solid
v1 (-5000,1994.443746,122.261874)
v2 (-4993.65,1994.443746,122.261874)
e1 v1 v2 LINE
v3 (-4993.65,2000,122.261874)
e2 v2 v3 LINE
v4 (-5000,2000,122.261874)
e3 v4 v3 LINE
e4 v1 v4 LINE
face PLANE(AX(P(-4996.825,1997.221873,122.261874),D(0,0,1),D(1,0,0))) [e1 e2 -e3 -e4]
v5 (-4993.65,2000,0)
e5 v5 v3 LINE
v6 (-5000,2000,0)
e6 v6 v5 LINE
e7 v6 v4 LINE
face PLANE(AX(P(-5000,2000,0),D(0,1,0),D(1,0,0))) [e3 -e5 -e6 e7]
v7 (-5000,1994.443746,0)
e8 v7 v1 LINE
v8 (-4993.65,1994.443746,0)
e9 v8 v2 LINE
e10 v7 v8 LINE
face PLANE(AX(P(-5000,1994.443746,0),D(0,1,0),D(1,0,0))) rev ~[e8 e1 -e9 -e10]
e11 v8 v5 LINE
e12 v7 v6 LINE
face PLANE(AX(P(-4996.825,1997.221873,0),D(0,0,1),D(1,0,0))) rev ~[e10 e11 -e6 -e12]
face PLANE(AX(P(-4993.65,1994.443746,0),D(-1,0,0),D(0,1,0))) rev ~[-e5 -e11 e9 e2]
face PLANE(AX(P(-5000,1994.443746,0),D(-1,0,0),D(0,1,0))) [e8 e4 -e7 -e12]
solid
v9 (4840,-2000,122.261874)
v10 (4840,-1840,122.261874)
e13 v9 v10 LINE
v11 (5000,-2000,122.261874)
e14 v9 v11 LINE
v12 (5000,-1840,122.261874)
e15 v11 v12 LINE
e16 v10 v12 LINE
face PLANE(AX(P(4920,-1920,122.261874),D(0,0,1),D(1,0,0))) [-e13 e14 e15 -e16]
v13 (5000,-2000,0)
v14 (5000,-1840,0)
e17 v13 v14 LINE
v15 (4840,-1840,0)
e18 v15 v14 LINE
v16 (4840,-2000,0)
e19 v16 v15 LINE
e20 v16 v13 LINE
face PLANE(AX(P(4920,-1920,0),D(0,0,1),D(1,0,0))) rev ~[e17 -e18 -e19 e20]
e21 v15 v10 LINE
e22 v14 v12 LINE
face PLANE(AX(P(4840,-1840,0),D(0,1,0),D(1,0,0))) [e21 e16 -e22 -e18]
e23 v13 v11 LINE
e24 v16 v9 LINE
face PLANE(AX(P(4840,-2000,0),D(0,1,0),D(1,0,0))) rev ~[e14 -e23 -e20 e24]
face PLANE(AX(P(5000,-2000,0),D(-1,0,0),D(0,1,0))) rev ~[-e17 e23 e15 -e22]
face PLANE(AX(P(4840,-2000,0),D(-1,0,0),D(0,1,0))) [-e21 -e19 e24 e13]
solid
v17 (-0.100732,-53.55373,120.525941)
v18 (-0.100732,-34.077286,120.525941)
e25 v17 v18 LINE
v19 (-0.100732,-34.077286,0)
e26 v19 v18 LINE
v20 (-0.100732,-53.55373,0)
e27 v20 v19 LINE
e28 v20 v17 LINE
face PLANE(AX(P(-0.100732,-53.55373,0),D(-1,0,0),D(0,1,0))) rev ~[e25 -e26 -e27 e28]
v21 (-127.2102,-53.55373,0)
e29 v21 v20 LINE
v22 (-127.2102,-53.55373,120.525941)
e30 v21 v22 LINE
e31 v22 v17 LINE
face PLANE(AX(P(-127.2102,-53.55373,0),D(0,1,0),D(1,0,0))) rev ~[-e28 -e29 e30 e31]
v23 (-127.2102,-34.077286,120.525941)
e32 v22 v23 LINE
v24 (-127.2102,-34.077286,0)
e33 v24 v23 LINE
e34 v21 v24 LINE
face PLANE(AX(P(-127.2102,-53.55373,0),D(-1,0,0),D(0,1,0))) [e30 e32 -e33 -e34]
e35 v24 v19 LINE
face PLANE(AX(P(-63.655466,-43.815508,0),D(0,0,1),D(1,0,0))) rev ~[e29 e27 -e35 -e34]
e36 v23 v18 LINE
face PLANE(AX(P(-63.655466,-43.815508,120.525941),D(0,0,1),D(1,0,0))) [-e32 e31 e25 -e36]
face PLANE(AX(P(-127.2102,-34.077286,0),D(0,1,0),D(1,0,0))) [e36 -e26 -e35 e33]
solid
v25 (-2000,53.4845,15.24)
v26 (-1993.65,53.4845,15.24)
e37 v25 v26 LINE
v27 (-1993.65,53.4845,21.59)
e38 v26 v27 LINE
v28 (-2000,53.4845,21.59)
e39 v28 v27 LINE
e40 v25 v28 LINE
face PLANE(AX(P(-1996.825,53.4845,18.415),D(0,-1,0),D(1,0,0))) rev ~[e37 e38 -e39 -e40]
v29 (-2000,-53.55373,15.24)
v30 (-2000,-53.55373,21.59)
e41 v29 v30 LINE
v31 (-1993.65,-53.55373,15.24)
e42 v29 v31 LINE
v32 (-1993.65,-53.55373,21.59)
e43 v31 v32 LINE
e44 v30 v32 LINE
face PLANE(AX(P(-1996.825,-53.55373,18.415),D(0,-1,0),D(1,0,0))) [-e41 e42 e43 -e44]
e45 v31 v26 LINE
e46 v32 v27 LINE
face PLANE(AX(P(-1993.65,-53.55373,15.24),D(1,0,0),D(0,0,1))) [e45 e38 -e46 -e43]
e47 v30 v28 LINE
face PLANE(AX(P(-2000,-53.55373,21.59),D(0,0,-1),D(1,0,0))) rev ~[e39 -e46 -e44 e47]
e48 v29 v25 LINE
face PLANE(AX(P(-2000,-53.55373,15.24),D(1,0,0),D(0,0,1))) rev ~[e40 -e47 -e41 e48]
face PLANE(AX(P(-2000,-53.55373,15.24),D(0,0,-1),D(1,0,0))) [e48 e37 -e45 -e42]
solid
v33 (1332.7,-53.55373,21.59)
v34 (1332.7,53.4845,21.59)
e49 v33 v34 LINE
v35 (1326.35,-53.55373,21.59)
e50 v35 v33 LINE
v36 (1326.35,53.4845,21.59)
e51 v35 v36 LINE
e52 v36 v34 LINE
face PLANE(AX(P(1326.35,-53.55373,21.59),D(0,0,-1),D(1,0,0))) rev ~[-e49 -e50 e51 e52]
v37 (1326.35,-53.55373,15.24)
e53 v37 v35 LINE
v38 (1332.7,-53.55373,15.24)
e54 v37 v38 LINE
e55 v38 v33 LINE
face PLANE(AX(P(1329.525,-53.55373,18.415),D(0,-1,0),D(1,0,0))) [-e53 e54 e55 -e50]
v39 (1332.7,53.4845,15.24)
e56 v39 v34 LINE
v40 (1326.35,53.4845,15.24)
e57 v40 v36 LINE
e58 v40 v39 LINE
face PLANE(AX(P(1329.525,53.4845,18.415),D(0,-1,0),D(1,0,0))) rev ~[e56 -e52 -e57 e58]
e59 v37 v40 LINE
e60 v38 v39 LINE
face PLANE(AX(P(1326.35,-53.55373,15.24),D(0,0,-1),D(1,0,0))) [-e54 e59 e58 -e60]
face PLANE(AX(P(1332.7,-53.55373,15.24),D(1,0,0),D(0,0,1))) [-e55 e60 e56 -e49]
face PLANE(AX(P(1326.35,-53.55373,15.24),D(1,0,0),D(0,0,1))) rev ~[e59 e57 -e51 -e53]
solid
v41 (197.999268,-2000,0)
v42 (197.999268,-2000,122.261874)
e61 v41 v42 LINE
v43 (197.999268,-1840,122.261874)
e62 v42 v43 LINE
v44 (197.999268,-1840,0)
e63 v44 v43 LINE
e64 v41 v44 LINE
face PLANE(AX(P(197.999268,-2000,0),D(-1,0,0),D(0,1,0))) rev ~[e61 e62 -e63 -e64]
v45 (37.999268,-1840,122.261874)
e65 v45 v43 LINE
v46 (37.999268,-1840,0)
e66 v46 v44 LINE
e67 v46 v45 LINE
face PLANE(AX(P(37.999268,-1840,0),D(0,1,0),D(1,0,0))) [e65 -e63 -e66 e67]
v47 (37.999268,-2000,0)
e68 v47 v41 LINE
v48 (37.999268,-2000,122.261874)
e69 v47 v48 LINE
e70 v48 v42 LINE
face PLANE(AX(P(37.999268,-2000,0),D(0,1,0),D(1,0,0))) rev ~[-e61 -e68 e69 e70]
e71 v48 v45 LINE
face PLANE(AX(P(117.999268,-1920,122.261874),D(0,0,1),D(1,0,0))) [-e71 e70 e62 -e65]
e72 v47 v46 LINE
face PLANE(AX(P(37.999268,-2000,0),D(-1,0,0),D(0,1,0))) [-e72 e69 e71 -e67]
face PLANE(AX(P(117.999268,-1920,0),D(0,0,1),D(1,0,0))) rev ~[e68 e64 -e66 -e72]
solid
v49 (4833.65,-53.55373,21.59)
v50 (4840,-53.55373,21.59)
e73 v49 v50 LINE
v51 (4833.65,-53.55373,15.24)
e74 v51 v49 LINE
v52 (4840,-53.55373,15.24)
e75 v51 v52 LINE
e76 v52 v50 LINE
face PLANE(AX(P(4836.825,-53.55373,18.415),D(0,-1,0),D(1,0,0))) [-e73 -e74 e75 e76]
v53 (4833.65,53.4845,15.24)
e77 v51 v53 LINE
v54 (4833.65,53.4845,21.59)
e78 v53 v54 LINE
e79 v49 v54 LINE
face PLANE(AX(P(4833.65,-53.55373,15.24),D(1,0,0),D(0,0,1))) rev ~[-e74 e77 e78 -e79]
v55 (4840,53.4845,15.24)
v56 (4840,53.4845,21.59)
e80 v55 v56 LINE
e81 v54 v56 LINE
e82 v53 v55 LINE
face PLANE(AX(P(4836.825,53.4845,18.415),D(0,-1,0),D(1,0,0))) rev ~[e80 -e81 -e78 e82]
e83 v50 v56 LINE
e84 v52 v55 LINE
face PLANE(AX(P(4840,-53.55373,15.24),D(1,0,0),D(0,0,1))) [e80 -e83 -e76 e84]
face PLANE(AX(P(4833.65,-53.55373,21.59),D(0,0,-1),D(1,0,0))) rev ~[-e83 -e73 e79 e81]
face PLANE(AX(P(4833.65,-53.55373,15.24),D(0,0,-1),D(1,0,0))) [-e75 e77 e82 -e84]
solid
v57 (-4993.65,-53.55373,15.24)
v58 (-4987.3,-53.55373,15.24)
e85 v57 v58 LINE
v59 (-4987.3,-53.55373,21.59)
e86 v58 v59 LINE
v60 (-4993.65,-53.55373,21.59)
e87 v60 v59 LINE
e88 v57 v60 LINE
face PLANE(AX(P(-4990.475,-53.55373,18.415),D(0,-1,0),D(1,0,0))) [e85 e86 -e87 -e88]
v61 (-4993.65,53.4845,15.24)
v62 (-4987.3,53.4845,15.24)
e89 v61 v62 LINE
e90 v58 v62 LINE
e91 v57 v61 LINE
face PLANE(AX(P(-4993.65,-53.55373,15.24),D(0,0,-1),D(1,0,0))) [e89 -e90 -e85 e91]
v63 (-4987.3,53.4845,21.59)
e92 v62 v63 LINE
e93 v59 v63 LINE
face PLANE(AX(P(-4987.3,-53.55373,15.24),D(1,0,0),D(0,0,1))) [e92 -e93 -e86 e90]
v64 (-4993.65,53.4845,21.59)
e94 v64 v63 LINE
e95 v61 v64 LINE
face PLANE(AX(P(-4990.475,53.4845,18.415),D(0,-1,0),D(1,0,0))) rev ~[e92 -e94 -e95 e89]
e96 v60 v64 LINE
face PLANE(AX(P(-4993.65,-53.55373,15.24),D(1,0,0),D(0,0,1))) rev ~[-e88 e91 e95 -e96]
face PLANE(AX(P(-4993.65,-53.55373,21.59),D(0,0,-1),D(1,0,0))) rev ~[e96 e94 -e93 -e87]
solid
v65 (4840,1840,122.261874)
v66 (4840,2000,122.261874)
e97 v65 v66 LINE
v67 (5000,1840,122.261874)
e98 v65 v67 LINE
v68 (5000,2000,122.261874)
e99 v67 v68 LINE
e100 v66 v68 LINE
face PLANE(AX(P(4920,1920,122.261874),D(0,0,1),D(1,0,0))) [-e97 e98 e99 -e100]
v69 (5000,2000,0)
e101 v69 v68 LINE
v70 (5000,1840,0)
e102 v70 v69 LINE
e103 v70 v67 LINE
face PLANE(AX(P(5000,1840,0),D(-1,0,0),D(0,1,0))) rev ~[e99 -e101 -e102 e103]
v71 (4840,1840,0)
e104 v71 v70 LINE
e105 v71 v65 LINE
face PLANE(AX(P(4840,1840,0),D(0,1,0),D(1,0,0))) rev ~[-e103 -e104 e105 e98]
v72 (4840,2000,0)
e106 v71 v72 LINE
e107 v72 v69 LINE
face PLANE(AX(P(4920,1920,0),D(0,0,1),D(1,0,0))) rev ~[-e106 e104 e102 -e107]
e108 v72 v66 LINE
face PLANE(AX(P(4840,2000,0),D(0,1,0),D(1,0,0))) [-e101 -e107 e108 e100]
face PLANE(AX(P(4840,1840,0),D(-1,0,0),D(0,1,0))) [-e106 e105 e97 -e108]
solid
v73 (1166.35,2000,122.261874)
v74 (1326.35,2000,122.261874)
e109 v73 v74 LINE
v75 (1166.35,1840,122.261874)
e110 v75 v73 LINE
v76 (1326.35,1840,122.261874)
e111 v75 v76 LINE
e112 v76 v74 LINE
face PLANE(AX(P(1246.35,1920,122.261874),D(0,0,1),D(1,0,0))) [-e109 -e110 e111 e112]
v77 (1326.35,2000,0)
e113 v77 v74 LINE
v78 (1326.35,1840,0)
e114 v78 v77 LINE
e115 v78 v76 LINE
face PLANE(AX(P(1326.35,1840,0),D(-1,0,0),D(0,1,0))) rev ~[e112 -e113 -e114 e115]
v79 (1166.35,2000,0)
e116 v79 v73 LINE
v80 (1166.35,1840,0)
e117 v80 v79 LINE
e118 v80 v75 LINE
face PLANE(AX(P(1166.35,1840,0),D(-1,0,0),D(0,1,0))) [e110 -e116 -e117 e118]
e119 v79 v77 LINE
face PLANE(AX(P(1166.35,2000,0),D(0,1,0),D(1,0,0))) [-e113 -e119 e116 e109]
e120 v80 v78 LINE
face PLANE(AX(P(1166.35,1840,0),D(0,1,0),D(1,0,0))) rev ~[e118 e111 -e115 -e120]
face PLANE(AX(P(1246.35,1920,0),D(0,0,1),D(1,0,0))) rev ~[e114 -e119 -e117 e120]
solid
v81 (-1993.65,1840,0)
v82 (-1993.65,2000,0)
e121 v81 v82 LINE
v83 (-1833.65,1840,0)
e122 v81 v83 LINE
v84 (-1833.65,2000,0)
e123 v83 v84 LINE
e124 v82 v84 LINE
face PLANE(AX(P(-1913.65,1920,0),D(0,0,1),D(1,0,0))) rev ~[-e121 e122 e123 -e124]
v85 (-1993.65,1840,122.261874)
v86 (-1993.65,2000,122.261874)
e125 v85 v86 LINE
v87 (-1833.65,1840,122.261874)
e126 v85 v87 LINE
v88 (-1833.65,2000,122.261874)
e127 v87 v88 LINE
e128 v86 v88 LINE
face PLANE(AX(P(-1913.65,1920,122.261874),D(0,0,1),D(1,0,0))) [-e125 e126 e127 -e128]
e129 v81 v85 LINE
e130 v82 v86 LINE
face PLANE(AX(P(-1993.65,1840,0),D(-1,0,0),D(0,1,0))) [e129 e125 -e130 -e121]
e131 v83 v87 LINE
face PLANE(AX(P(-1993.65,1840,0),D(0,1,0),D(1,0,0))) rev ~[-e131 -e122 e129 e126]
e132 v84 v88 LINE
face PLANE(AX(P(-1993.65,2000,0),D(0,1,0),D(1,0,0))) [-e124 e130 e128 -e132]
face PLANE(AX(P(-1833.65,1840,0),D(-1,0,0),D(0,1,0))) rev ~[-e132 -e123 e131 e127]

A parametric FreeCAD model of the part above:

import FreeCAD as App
import Part
import Sketcher


def add_polygon(sketch, points):
    """Adds a closed chain of lines whose ends are joined by coincident constraints."""
    first, n = sketch.GeometryCount, len(points)
    for a, b in zip(points, points[1:] + points[:1]):
        sketch.addGeometry(Part.LineSegment(App.Vector(*a, 0), App.Vector(*b, 0)), False)
    for i in range(n):
        sketch.addConstraint(Sketcher.Constraint("Coincident", first + i, 2, first + (i + 1) % n, 1))

doc = App.newDocument("Part")
body = doc.addObject("PartDesign::Body", "Body")

# Sketch on XY plane
sketch1 = body.newObject("Sketcher::SketchObject", "Sketch")
sketch1.AttachmentSupport = (doc.getObject("XY_Plane"), [""])
sketch1.MapMode = "FlatFace"
add_polygon(sketch1, [(-127, -34), (-127, -54), (0, -54), (0, -34)])  # lines 0-3
sketch1.addConstraint(Sketcher.Constraint("Vertical", 0))
sketch1.addConstraint(Sketcher.Constraint("Horizontal", 1))
sketch1.addConstraint(Sketcher.Constraint("Vertical", 2))
sketch1.addConstraint(Sketcher.Constraint("Horizontal", 3))
sketch1.addConstraint(Sketcher.Constraint("DistanceX", 1, 1, 1, 2, 127.109468))
sketch1.addConstraint(Sketcher.Constraint("DistanceX", 0, 2, -1, 1, 127.2102))
sketch1.addConstraint(Sketcher.Constraint("DistanceY", 0, 2, 0, 1, 19.476443))
sketch1.addConstraint(Sketcher.Constraint("DistanceY", 0, 2, -1, 1, 53.55373))
pad1 = body.newObject("PartDesign::Pad", "Pad")
pad1.Profile = sketch1
pad1.Length = 120.525941
body2 = doc.addObject("PartDesign::Body", "Body001")
body2.AllowCompound = True

# Sketch on XY plane
sketch2 = body2.newObject("Sketcher::SketchObject", "Sketch001")
sketch2.AttachmentSupport = (doc.getObject("XY_Plane001"), [""])
sketch2.MapMode = "FlatFace"
add_polygon(sketch2, [(-5000, 2000), (-5000, 1994), (-4994, 1994), (-4994, 2000)])  # lines 0-3
add_polygon(sketch2, [(-1994, 2000), (-1994, 1840), (-1834, 1840), (-1834, 2000)])  # lines 4-7
add_polygon(sketch2, [(1166, 2000), (1166, 1840), (1326, 1840), (1326, 2000)])  # lines 8-11
add_polygon(sketch2, [(4840, 2000), (4840, 1840), (5000, 1840), (5000, 2000)])  # lines 12-15
add_polygon(sketch2, [(4840, -1840), (4840, -2000), (5000, -2000), (5000, -1840)])  # lines 16-19
add_polygon(sketch2, [(38, -1840), (38, -2000), (198, -2000), (198, -1840)])  # lines 20-23
sketch2.addConstraint(Sketcher.Constraint("Vertical", 0))
sketch2.addConstraint(Sketcher.Constraint("Horizontal", 1))
sketch2.addConstraint(Sketcher.Constraint("Vertical", 2))
sketch2.addConstraint(Sketcher.Constraint("Horizontal", 3))
sketch2.addConstraint(Sketcher.Constraint("Vertical", 4))
sketch2.addConstraint(Sketcher.Constraint("Horizontal", 5))
sketch2.addConstraint(Sketcher.Constraint("Vertical", 6))
sketch2.addConstraint(Sketcher.Constraint("Horizontal", 7))
sketch2.addConstraint(Sketcher.Constraint("Vertical", 8))
sketch2.addConstraint(Sketcher.Constraint("Horizontal", 9))
sketch2.addConstraint(Sketcher.Constraint("Vertical", 10))
sketch2.addConstraint(Sketcher.Constraint("Horizontal", 11))
sketch2.addConstraint(Sketcher.Constraint("Vertical", 12))
sketch2.addConstraint(Sketcher.Constraint("Horizontal", 13))
sketch2.addConstraint(Sketcher.Constraint("Vertical", 14))
sketch2.addConstraint(Sketcher.Constraint("Horizontal", 15))
sketch2.addConstraint(Sketcher.Constraint("Vertical", 16))
sketch2.addConstraint(Sketcher.Constraint("Horizontal", 17))
sketch2.addConstraint(Sketcher.Constraint("Vertical", 18))
sketch2.addConstraint(Sketcher.Constraint("Horizontal", 19))
sketch2.addConstraint(Sketcher.Constraint("Vertical", 20))
sketch2.addConstraint(Sketcher.Constraint("Horizontal", 21))
sketch2.addConstraint(Sketcher.Constraint("Vertical", 22))
sketch2.addConstraint(Sketcher.Constraint("Horizontal", 23))
sketch2.addConstraint(Sketcher.Constraint("Symmetric", 3, 2, 17, 2, -1, 1))
sketch2.addConstraint(Sketcher.Constraint("Symmetric", 3, 2, 14, 2, -2))
sketch2.addConstraint(Sketcher.Constraint("Symmetric", 12, 2, 19, 2, -1))
sketch2.addConstraint(Sketcher.Constraint("Horizontal", 3, 2, 6, 2))
sketch2.addConstraint(Sketcher.Constraint("Horizontal", 5, 2, 8, 2))
sketch2.addConstraint(Sketcher.Constraint("Horizontal", 7, 2, 10, 2))
sketch2.addConstraint(Sketcher.Constraint("Horizontal", 9, 2, 12, 2))
sketch2.addConstraint(Sketcher.Constraint("Horizontal", 17, 2, 20, 2))
sketch2.addConstraint(Sketcher.Constraint("Horizontal", 19, 2, 22, 2))
sketch2.addConstraint(Sketcher.Constraint("Equal", 7, 9))
sketch2.addConstraint(Sketcher.Constraint("Equal", 11, 13))
sketch2.addConstraint(Sketcher.Constraint("Equal", 19, 21))
sketch2.addConstraint(Sketcher.Constraint("Equal", 23, 4))
sketch2.addConstraint(Sketcher.Constraint("DistanceX", 5, 1, 5, 2, 160.0))
sketch2.addConstraint(Sketcher.Constraint("DistanceX", 0, 2, -1, 1, 5000.0))
sketch2.addConstraint(Sketcher.Constraint("DistanceY", -1, 1, 2, 2, 2000.0))
sketch2.addConstraint(Sketcher.Constraint("DistanceX", 1, 2, 4, 2, 3000.0))
sketch2.addConstraint(Sketcher.Constraint("DistanceX", 5, 2, 8, 2, 3000.0))
sketch2.addConstraint(Sketcher.Constraint("DistanceX", 1, 1, 1, 2, 6.35))
sketch2.addConstraint(Sketcher.Constraint("DistanceY", 0, 2, 0, 1, 5.556254))
sketch2.addConstraint(Sketcher.Constraint("DistanceX", -1, 1, 21, 2, 197.999268))
pad2 = body2.newObject("PartDesign::Pad", "Pad001")
pad2.Profile = sketch2
pad2.Length = 122.261874
body3 = doc.addObject("PartDesign::Body", "Body002")
body3.AllowCompound = True

# Sketch on XZ plane
sketch3 = body3.newObject("Sketcher::SketchObject", "Sketch002")
sketch3.AttachmentSupport = (doc.getObject("XZ_Plane002"), [""])
sketch3.MapMode = "FlatFace"
sketch3.AttachmentOffset = App.Placement(App.Vector(0, 0, 53.55373), App.Rotation())
add_polygon(sketch3, [(4834, 22), (4834, 15), (4840, 15), (4840, 22)])  # lines 0-3
add_polygon(sketch3, [(1326, 22), (1326, 15), (1333, 15), (1333, 22)])  # lines 4-7
add_polygon(sketch3, [(-2000, 22), (-2000, 15), (-1994, 15), (-1994, 22)])  # lines 8-11
add_polygon(sketch3, [(-4994, 22), (-4994, 15), (-4987, 15), (-4987, 22)])  # lines 12-15
sketch3.addConstraint(Sketcher.Constraint("Vertical", 0))
sketch3.addConstraint(Sketcher.Constraint("Horizontal", 1))
sketch3.addConstraint(Sketcher.Constraint("Vertical", 2))
sketch3.addConstraint(Sketcher.Constraint("Horizontal", 3))
sketch3.addConstraint(Sketcher.Constraint("Vertical", 4))
sketch3.addConstraint(Sketcher.Constraint("Horizontal", 5))
sketch3.addConstraint(Sketcher.Constraint("Vertical", 6))
sketch3.addConstraint(Sketcher.Constraint("Horizontal", 7))
sketch3.addConstraint(Sketcher.Constraint("Vertical", 8))
sketch3.addConstraint(Sketcher.Constraint("Horizontal", 9))
sketch3.addConstraint(Sketcher.Constraint("Vertical", 10))
sketch3.addConstraint(Sketcher.Constraint("Horizontal", 11))
sketch3.addConstraint(Sketcher.Constraint("Vertical", 12))
sketch3.addConstraint(Sketcher.Constraint("Horizontal", 13))
sketch3.addConstraint(Sketcher.Constraint("Vertical", 14))
sketch3.addConstraint(Sketcher.Constraint("Horizontal", 15))
sketch3.addConstraint(Sketcher.Constraint("Horizontal", 1, 2, 4, 2))
sketch3.addConstraint(Sketcher.Constraint("Horizontal", 3, 2, 6, 2))
sketch3.addConstraint(Sketcher.Constraint("Horizontal", 5, 2, 8, 2))
sketch3.addConstraint(Sketcher.Constraint("Horizontal", 7, 2, 10, 2))
sketch3.addConstraint(Sketcher.Constraint("Horizontal", 9, 2, 12, 2))
sketch3.addConstraint(Sketcher.Constraint("Horizontal", 11, 2, 14, 2))
sketch3.addConstraint(Sketcher.Constraint("Equal", 3, 5))
sketch3.addConstraint(Sketcher.Constraint("Equal", 7, 9))
sketch3.addConstraint(Sketcher.Constraint("Equal", 11, 13))
sketch3.addConstraint(Sketcher.Constraint("Equal", 15, 0))
sketch3.addConstraint(Sketcher.Constraint("DistanceX", -1, 1, 1, 2, 4840.0))
sketch3.addConstraint(Sketcher.Constraint("DistanceX", 8, 2, -1, 1, 2000.0))
sketch3.addConstraint(Sketcher.Constraint("DistanceX", 9, 2, 4, 2, 3320.0))
sketch3.addConstraint(Sketcher.Constraint("DistanceX", 12, 2, 9, 2, 3000.0))
sketch3.addConstraint(Sketcher.Constraint("DistanceX", 1, 1, 1, 2, 6.35))
sketch3.addConstraint(Sketcher.Constraint("DistanceY", -1, 1, 0, 2, 15.24))
pad3 = body3.newObject("PartDesign::Pad", "Pad002")
pad3.Profile = sketch3
pad3.Length = 107.03823
pad3.Reversed = True

doc.recompute()
